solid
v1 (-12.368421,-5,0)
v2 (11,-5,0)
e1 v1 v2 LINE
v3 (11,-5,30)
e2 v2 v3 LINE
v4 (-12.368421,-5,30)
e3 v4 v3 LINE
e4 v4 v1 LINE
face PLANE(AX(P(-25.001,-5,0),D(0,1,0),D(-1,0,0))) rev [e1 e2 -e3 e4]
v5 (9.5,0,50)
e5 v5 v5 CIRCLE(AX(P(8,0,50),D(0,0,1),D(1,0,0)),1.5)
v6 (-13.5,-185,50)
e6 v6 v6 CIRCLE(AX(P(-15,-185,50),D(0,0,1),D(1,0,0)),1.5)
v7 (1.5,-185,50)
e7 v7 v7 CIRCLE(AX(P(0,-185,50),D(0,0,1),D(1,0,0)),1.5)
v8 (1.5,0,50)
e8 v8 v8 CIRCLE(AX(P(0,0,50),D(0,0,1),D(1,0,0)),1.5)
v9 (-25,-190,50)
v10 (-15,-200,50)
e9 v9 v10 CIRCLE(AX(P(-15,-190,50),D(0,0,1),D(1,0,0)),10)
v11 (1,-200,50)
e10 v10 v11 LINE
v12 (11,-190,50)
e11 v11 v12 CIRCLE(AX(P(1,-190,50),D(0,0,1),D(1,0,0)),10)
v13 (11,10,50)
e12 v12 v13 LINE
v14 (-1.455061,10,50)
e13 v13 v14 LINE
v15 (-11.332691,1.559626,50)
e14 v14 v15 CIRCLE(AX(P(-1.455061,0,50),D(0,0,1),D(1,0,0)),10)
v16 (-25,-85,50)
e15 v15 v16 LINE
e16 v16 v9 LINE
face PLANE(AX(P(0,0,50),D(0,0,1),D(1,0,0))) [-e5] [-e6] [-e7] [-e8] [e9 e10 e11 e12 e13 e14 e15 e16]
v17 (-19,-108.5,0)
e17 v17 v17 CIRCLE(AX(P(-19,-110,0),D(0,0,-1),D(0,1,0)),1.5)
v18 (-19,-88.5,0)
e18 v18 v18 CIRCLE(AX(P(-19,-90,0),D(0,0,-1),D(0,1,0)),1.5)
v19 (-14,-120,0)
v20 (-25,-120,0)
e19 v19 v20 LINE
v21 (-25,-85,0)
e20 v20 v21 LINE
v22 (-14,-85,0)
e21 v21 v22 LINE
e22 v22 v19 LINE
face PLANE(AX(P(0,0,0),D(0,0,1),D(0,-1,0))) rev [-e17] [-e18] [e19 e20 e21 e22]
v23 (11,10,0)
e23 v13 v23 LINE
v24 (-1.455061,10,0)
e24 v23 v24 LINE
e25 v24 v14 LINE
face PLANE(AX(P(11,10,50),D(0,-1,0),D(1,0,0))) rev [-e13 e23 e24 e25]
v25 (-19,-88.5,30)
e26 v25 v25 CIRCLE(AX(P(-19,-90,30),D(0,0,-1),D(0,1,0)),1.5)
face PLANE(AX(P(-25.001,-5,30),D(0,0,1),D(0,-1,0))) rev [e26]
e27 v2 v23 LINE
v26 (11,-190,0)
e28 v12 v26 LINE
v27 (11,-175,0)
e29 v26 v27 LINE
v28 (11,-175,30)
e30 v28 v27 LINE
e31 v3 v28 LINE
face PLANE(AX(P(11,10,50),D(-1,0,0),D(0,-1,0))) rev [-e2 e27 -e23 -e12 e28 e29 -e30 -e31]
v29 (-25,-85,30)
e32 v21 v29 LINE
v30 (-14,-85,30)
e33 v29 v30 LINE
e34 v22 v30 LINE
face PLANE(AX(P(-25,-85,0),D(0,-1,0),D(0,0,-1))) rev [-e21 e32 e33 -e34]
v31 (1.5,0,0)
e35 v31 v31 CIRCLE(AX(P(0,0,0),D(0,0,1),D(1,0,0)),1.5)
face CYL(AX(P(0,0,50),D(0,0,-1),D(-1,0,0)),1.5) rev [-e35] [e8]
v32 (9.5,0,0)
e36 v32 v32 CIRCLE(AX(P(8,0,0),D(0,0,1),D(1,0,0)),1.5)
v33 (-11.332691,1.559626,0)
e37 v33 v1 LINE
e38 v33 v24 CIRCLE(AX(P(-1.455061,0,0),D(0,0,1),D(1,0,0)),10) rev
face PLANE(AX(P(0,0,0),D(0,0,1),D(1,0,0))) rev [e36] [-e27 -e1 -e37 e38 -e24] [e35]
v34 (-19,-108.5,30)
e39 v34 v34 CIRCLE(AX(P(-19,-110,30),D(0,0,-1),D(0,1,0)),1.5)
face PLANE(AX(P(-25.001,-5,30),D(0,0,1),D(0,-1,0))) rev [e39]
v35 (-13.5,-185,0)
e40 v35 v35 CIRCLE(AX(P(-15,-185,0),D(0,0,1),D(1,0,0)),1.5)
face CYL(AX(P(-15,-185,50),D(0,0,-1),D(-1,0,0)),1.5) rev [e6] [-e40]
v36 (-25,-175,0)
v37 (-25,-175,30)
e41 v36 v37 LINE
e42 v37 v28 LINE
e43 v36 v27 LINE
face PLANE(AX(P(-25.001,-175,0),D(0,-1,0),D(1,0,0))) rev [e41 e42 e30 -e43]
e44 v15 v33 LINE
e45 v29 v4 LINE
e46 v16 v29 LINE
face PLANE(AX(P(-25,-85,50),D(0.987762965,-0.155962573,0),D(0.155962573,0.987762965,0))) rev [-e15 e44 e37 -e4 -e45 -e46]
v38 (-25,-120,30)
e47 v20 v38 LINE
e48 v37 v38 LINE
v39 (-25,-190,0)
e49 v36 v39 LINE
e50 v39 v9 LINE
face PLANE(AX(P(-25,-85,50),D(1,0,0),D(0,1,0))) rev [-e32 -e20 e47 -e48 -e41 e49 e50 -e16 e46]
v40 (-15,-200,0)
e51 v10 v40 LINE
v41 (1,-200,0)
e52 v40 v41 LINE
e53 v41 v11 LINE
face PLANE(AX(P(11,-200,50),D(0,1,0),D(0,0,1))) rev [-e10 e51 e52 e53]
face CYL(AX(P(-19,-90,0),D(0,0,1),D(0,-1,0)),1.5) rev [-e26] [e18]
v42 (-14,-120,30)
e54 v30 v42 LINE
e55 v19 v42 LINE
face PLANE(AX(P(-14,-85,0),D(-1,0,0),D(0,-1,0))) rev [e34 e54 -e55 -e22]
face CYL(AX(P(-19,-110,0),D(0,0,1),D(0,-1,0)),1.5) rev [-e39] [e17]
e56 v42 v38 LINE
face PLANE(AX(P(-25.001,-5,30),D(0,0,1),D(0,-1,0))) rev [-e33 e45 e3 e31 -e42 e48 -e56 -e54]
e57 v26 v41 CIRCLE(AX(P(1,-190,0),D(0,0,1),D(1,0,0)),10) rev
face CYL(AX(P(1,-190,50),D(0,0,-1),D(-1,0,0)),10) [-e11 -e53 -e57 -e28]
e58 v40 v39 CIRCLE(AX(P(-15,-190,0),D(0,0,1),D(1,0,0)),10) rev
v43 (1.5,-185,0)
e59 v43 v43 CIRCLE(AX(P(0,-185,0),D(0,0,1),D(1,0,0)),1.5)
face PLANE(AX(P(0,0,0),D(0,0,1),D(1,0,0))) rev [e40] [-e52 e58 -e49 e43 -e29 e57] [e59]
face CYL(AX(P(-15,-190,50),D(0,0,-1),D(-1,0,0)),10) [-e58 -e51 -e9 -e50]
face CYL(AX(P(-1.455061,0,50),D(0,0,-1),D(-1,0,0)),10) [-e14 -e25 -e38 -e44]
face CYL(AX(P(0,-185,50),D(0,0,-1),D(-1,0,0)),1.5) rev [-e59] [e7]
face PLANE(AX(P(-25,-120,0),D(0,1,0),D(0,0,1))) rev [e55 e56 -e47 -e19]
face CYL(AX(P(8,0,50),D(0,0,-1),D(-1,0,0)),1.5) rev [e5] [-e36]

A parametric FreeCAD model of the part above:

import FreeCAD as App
import Part
import Sketcher


def edges_at(feature, points):
    """Names of the edges that pass closest to the given points."""
    edges = feature.Shape.Edges
    near = lambda p: min(range(len(edges)), key=lambda i: edges[i].distToShape(Part.Vertex(*p))[0])
    return sorted({f"Edge{near(p) + 1}" for p in points})

doc = App.newDocument("Part")
params = doc.addObject("Spreadsheet::Sheet", "Params")
for row, (alias, value) in enumerate([
    ("sketch1_diameter", "3 mm"),
    ("sketch1_width", "36 mm"),
    ("sketch1_width2", "21 mm"),
    ("sketch1_height", "115 mm"),
    ("sketch1_height2", "210 mm"),
    ("pad1_length", "50 mm"),
    ("sketch2_width", "170 mm"),
    ("sketch2_height", "30 mm"),
    ("fillet_radius", "10 mm"),
    ("fillet2_radius", "10 mm"),
    ("sketch3_diameter", "3 mm"),
    ("sketch3_width", "11 mm"),
    ("sketch3_height", "35 mm"),
    ("pad2_length", "30 mm"),
], start=1):
    params.set(f"A{row}", alias)
    params.set(f"B{row}", "=" + value)
    params.setAlias(f"B{row}", alias)

body = doc.addObject("PartDesign::Body", "Body")

# Sketch on XY plane
sketch1 = body.newObject("Sketcher::SketchObject", "Sketch")
sketch1.AttachmentSupport = (doc.getObject("XY_Plane"), [""])
sketch1.MapMode = "FlatFace"
sketch1.addGeometry(Part.LineSegment(App.Vector(-10, 10, 0), App.Vector(-25, -85, 0)), False)
sketch1.addGeometry(Part.LineSegment(App.Vector(-25, -85, 0), App.Vector(-25, -200, 0)), False)
sketch1.addGeometry(Part.LineSegment(App.Vector(-25, -200, 0), App.Vector(11, -200, 0)), False)
sketch1.addGeometry(Part.LineSegment(App.Vector(11, -200, 0), App.Vector(11, 10, 0)), False)
sketch1.addGeometry(Part.LineSegment(App.Vector(11, 10, 0), App.Vector(-10, 10, 0)), False)
sketch1.addGeometry(Part.Circle(App.Vector(8, 0, 0), App.Vector(0, 0, 1), 1.5), False)
sketch1.addGeometry(Part.Circle(App.Vector(0, 0, 0), App.Vector(0, 0, 1), 1.5), False)
sketch1.addGeometry(Part.Circle(App.Vector(0, -185, 0), App.Vector(0, 0, 1), 1.5), False)
sketch1.addGeometry(Part.Circle(App.Vector(-15, -185, 0), App.Vector(0, 0, 1), 1.5), False)
sketch1.addConstraint(Sketcher.Constraint("Coincident", 0, 2, 1, 1))
sketch1.addConstraint(Sketcher.Constraint("Coincident", 1, 2, 2, 1))
sketch1.addConstraint(Sketcher.Constraint("Coincident", 2, 2, 3, 1))
sketch1.addConstraint(Sketcher.Constraint("Coincident", 3, 2, 4, 1))
sketch1.addConstraint(Sketcher.Constraint("Coincident", 4, 2, 0, 1))
sketch1.addConstraint(Sketcher.Constraint("Vertical", 1))
sketch1.addConstraint(Sketcher.Constraint("Horizontal", 2))
sketch1.addConstraint(Sketcher.Constraint("Vertical", 3))
sketch1.addConstraint(Sketcher.Constraint("Horizontal", 4))
sketch1.addConstraint(Sketcher.Constraint("Coincident", 6, 3, -1, 1))
sketch1.addConstraint(Sketcher.Constraint("Equal", 5, 6))
sketch1.addConstraint(Sketcher.Constraint("Equal", 6, 7))
sketch1.addConstraint(Sketcher.Constraint("Equal", 7, 8))
sketch1.addConstraint(Sketcher.Constraint("PointOnObject", 5, 3, -1))
sketch1.addConstraint(Sketcher.Constraint("PointOnObject", 7, 3, -2))
sketch1.addConstraint(Sketcher.Constraint("Horizontal", 7, 3, 8, 3))
sketch1.addConstraint(Sketcher.Constraint("Diameter", 5, 3.0))
sketch1.addConstraint(Sketcher.Constraint("DistanceX", 2, 1, 2, 2, 36.0))
sketch1.addConstraint(Sketcher.Constraint("DistanceX", 4, 2, 4, 1, 21.0))
sketch1.addConstraint(Sketcher.Constraint("DistanceY", 1, 2, 1, 1, 115.0))
sketch1.addConstraint(Sketcher.Constraint("DistanceY", 3, 1, 3, 2, 210.0))
sketch1.addConstraint(Sketcher.Constraint("DistanceX", -1, 1, 5, 3, 8.0))
sketch1.addConstraint(Sketcher.Constraint("DistanceY", 7, 3, -1, 1, 185.0))
sketch1.addConstraint(Sketcher.Constraint("DistanceX", 8, 3, -1, 1, 15.0))
sketch1.addConstraint(Sketcher.Constraint("DistanceX", 0, 2, -1, 1, 25.0))
sketch1.addConstraint(Sketcher.Constraint("DistanceY", 0, 2, -1, 1, 85.0))
sketch1.setExpression("Constraints[16]", "Params.sketch1_diameter")
sketch1.setExpression("Constraints[17]", "Params.sketch1_width")
sketch1.setExpression("Constraints[18]", "Params.sketch1_width2")
sketch1.setExpression("Constraints[19]", "Params.sketch1_height")
sketch1.setExpression("Constraints[20]", "Params.sketch1_height2")
pad1 = body.newObject("PartDesign::Pad", "Pad")
pad1.Profile = sketch1
pad1.setExpression("Length", "Params.pad1_length")

# Sketch on YZ plane
sketch2 = body.newObject("Sketcher::SketchObject", "Sketch001")
sketch2.AttachmentSupport = (doc.getObject("YZ_Plane"), [""])
sketch2.MapMode = "FlatFace"
sketch2.AttachmentOffset = App.Placement(App.Vector(0, 0, 11), App.Rotation())
sketch2.addGeometry(Part.LineSegment(App.Vector(-5, 30, 0), App.Vector(-175, 30, 0)), False)
sketch2.addGeometry(Part.LineSegment(App.Vector(-175, 30, 0), App.Vector(-175, 0, 0)), False)
sketch2.addGeometry(Part.LineSegment(App.Vector(-175, 0, 0), App.Vector(-5, 0, 0)), False)
sketch2.addGeometry(Part.LineSegment(App.Vector(-5, 0, 0), App.Vector(-5, 30, 0)), False)
sketch2.addConstraint(Sketcher.Constraint("Coincident", 0, 2, 1, 1))
sketch2.addConstraint(Sketcher.Constraint("Coincident", 1, 2, 2, 1))
sketch2.addConstraint(Sketcher.Constraint("Coincident", 2, 2, 3, 1))
sketch2.addConstraint(Sketcher.Constraint("Coincident", 3, 2, 0, 1))
sketch2.addConstraint(Sketcher.Constraint("Horizontal", 0))
sketch2.addConstraint(Sketcher.Constraint("Vertical", 1))
sketch2.addConstraint(Sketcher.Constraint("Horizontal", 2))
sketch2.addConstraint(Sketcher.Constraint("Vertical", 3))
sketch2.addConstraint(Sketcher.Constraint("PointOnObject", 1, 2, -1))
sketch2.addConstraint(Sketcher.Constraint("DistanceX", 0, 2, 0, 1, 170.0))
sketch2.addConstraint(Sketcher.Constraint("DistanceY", 1, 2, 1, 1, 30.0))
sketch2.addConstraint(Sketcher.Constraint("DistanceX", 0, 2, -1, 1, 175.0))
sketch2.setExpression("Constraints[9]", "Params.sketch2_width")
sketch2.setExpression("Constraints[10]", "Params.sketch2_height")
pocket1 = body.newObject("PartDesign::Pocket", "Pocket")
pocket1.Profile = sketch2
pocket1.Type = "UpToFirst"
doc.recompute()

fillet = body.newObject("PartDesign::Fillet", "Fillet")
fillet.Base = (pocket1, edges_at(pocket1, [(11, -200, 25), (-25, -200, 25)]))
fillet.setExpression("Radius", "Params.fillet_radius")
doc.recompute()

fillet2 = body.newObject("PartDesign::Fillet", "Fillet001")
fillet2.Base = (fillet, edges_at(fillet, [(-10, 10, 25)]))
fillet2.setExpression("Radius", "Params.fillet2_radius")

# Sketch on XY plane
sketch3 = body.newObject("Sketcher::SketchObject", "Sketch002")
sketch3.AttachmentSupport = (doc.getObject("XY_Plane"), [""])
sketch3.MapMode = "FlatFace"
sketch3.AttachmentOffset = App.Placement(App.Vector(0, 0, 30), App.Rotation())
sketch3.addGeometry(Part.LineSegment(App.Vector(-14, -85, 0), App.Vector(-14, -120, 0)), False)
sketch3.addGeometry(Part.LineSegment(App.Vector(-14, -120, 0), App.Vector(-25, -120, 0)), False)
sketch3.addGeometry(Part.LineSegment(App.Vector(-25, -120, 0), App.Vector(-25, -85, 0)), False)
sketch3.addGeometry(Part.LineSegment(App.Vector(-25, -85, 0), App.Vector(-14, -85, 0)), False)
sketch3.addGeometry(Part.Circle(App.Vector(-19, -110, 0), App.Vector(0, 0, 1), 1.5), False)
sketch3.addGeometry(Part.Circle(App.Vector(-19, -90, 0), App.Vector(0, 0, 1), 1.5), False)
sketch3.addConstraint(Sketcher.Constraint("Coincident", 0, 2, 1, 1))
sketch3.addConstraint(Sketcher.Constraint("Coincident", 1, 2, 2, 1))
sketch3.addConstraint(Sketcher.Constraint("Coincident", 2, 2, 3, 1))
sketch3.addConstraint(Sketcher.Constraint("Coincident", 3, 2, 0, 1))
sketch3.addConstraint(Sketcher.Constraint("Vertical", 0))
sketch3.addConstraint(Sketcher.Constraint("Horizontal", 1))
sketch3.addConstraint(Sketcher.Constraint("Vertical", 2))
sketch3.addConstraint(Sketcher.Constraint("Horizontal", 3))
sketch3.addConstraint(Sketcher.Constraint("Equal", 4, 5))
sketch3.addConstraint(Sketcher.Constraint("Vertical", 4, 3, 5, 3))
sketch3.addConstraint(Sketcher.Constraint("Diameter", 4, 3.0))
sketch3.addConstraint(Sketcher.Constraint("DistanceX", 1, 2, 1, 1, 11.0))
sketch3.addConstraint(Sketcher.Constraint("DistanceY", 0, 2, 0, 1, 35.0))
sketch3.addConstraint(Sketcher.Constraint("DistanceX", 4, 3, -1, 1, 19.0))
sketch3.addConstraint(Sketcher.Constraint("DistanceY", 4, 3, -1, 1, 110.0))
sketch3.addConstraint(Sketcher.Constraint("DistanceY", 5, 3, -1, 1, 90.0))
sketch3.addConstraint(Sketcher.Constraint("DistanceX", 0, 2, -1, 1, 14.0))
sketch3.addConstraint(Sketcher.Constraint("DistanceY", 0, 2, -1, 1, 120.0))
sketch3.setExpression("Constraints[10]", "Params.sketch3_diameter")
sketch3.setExpression("Constraints[11]", "Params.sketch3_width")
sketch3.setExpression("Constraints[12]", "Params.sketch3_height")
pad2 = body.newObject("PartDesign::Pad", "Pad001")
pad2.Profile = sketch3
pad2.setExpression("Length", "Params.pad2_length")
pad2.Reversed = True

doc.recompute()
